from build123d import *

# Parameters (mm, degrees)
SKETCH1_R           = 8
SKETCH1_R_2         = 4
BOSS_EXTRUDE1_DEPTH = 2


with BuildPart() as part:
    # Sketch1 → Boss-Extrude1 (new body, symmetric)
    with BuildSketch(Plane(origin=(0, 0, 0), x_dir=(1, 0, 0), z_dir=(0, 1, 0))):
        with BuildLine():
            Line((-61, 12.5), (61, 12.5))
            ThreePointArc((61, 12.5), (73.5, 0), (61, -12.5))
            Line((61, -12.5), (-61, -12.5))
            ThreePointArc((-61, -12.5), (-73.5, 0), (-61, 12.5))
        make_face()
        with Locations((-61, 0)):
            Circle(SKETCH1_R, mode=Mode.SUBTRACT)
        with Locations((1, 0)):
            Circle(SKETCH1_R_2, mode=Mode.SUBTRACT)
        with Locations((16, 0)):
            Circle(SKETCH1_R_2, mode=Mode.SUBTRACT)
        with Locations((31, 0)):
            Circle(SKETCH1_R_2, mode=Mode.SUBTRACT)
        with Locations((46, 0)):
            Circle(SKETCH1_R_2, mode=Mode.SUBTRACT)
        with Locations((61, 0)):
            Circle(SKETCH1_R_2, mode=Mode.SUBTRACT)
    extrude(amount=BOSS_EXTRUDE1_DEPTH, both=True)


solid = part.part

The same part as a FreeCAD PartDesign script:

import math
import FreeCAD as App
import Part
import Sketcher
Q = App.Units.Quantity

doc = App.newDocument("Part")
body = doc.addObject("PartDesign::Body", "Body")

# Sketch on XZ plane
sketch1 = doc.addObject("Sketcher::SketchObject", "Sketch")
body.addObject(sketch1)
sketch1.AttachmentSupport = (doc.XZ_Plane, [""])
sketch1.MapMode = "FlatFace"
sketch1.addGeometry([
    Part.LineSegment(App.Vector(61, -12.5, 0), App.Vector(-61, -12.5, 0)),  # 0
    Part.ArcOfCircle(Part.Circle(App.Vector(-61, 0, 0), App.Vector(0, 0, 1), 12.5), math.radians(90), math.radians(270)),  # 1
    Part.LineSegment(App.Vector(-61, 12.5, 0), App.Vector(61, 12.5, 0)),  # 2
    Part.ArcOfCircle(Part.Circle(App.Vector(61, 0, 0), App.Vector(0, 0, 1), 12.5), math.radians(-90), math.radians(90)),  # 3
    Part.Circle(App.Vector(61, 0, 0), App.Vector(0, 0, 1), 4),  # 4
    Part.Circle(App.Vector(46, 0, 0), App.Vector(0, 0, 1), 4),  # 5
    Part.Circle(App.Vector(31, 0, 0), App.Vector(0, 0, 1), 4),  # 6
    Part.Circle(App.Vector(16, 0, 0), App.Vector(0, 0, 1), 4),  # 7
    Part.Circle(App.Vector(1, 0, 0), App.Vector(0, 0, 1), 4),  # 8
    Part.Circle(App.Vector(-61, 0, 0), App.Vector(0, 0, 1), 8),  # 9
], False)
sketch1.addConstraint([
    Sketcher.Constraint("Tangent", 0, 2, 1, 2),
    Sketcher.Constraint("Tangent", 1, 1, 2, 1),
    Sketcher.Constraint("Tangent", 2, 2, 3, 2),
    Sketcher.Constraint("Tangent", 3, 1, 0, 1),
    Sketcher.Constraint("Horizontal", 0),
    Sketcher.Constraint("Horizontal", 2),
    Sketcher.Constraint("Coincident", 4, 3, 3, 3),
    Sketcher.Constraint("Coincident", 9, 3, 1, 3),
    Sketcher.Constraint("Equal", 4, 5),
    Sketcher.Constraint("Equal", 5, 6),
    Sketcher.Constraint("Equal", 6, 7),
    Sketcher.Constraint("Equal", 7, 8),
    Sketcher.Constraint("Symmetric", 1, 3, 3, 3, -1, 1),
    Sketcher.Constraint("PointOnObject", 5, 3, -1),
    Sketcher.Constraint("PointOnObject", 6, 3, -1),
    Sketcher.Constraint("PointOnObject", 7, 3, -1),
    Sketcher.Constraint("PointOnObject", 8, 3, -1),
    Sketcher.Constraint("Diameter", 4, Q("8 mm")),
    Sketcher.Constraint("Diameter", 9, Q("16 mm")),
    Sketcher.Constraint("Radius", 1, Q("12.5 mm")),
    Sketcher.Constraint("DistanceX", 0, 2, 0, 1, Q("122 mm")),
    Sketcher.Constraint("DistanceX", -1, 1, 5, 3, Q("46 mm")),
    Sketcher.Constraint("DistanceX", -1, 1, 6, 3, Q("31 mm")),
    Sketcher.Constraint("DistanceX", -1, 1, 7, 3, Q("16 mm")),
    Sketcher.Constraint("DistanceX", -1, 1, 8, 3, Q("1 mm")),
])
pad1 = doc.addObject("PartDesign::Pad", "Pad")
body.addObject(pad1)
pad1.Profile = sketch1
pad1.Length = 4
pad1.Midplane = True

doc.recompute()
